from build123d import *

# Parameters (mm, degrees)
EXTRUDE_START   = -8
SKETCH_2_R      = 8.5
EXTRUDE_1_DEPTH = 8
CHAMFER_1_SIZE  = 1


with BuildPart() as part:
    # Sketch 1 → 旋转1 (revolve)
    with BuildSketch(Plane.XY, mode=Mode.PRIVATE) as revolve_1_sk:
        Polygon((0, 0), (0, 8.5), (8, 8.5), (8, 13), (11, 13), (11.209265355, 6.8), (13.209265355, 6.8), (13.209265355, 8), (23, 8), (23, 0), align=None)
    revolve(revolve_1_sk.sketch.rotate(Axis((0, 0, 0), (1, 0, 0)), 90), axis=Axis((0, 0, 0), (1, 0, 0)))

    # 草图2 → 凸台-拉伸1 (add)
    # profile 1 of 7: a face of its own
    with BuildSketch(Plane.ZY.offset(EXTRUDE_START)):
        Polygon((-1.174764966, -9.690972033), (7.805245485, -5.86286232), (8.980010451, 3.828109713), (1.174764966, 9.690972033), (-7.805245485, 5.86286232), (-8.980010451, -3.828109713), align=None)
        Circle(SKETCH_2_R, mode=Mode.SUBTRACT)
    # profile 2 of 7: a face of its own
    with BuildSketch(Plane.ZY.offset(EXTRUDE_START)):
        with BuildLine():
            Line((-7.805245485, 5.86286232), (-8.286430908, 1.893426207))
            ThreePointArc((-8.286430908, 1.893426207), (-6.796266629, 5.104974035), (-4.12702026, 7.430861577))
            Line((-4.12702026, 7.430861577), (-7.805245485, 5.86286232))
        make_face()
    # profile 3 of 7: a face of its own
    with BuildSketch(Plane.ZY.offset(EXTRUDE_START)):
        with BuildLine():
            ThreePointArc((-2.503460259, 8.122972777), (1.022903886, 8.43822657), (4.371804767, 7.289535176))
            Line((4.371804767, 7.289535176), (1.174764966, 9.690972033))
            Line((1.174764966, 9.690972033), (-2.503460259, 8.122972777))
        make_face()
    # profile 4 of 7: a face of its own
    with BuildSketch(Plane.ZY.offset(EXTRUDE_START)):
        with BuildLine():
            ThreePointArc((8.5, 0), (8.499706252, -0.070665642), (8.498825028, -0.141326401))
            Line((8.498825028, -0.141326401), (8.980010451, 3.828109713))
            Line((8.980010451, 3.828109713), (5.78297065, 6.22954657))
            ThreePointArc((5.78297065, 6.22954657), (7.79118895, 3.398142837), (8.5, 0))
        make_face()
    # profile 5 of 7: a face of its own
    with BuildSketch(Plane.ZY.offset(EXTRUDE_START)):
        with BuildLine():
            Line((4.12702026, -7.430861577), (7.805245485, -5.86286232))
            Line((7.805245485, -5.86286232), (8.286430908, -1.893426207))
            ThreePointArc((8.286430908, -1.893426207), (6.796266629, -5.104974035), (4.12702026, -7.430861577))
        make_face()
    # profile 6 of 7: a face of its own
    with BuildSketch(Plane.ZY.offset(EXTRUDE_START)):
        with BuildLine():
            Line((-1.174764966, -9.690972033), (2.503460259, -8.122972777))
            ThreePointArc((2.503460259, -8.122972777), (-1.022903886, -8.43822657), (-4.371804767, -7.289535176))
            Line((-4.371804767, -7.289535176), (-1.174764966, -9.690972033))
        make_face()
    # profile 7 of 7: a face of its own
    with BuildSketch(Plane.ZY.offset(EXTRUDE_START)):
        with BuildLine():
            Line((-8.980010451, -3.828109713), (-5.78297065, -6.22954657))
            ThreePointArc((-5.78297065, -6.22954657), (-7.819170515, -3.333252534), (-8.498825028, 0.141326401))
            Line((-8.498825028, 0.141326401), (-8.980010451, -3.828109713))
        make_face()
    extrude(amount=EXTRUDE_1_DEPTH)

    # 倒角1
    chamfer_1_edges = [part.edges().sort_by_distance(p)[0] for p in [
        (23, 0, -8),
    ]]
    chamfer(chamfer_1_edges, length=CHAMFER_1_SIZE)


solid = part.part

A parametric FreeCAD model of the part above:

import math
import FreeCAD as App
import Part
import Sketcher
from FreeCAD import Vector


def edges_at(feature, points):
    """Names of the edges that pass closest to the given points."""
    edges = feature.Shape.Edges
    near = lambda p: min(range(len(edges)), key=lambda i: edges[i].distToShape(Part.Vertex(*p))[0])
    return sorted({f"Edge{near(p) + 1}" for p in points})


def add_polygon(sketch, points):
    """Adds a closed chain of lines whose ends are joined by coincident constraints."""
    first, n = sketch.GeometryCount, len(points)
    for a, b in zip(points, points[1:] + points[:1]):
        sketch.addGeometry(Part.LineSegment(App.Vector(*a, 0), App.Vector(*b, 0)), False)
    for i in range(n):
        sketch.addConstraint(Sketcher.Constraint("Coincident", first + i, 2, first + (i + 1) % n, 1))

doc = App.newDocument("Part")
params = doc.addObject("Spreadsheet::Sheet", "Params")
for row, (alias, value) in enumerate([
    ("sketch1_width", "23 mm"),
    ("sketch1_width2", "2 mm"),
    ("sketch1_width3", "3 mm"),
    ("sketch1_width4", "8 mm"),
    ("sketch1_height", "8.5 mm"),
    ("revolution_angle", "360 deg"),
    ("sketch2_radius", "8.5 mm"),
    ("pad1_length", "8 mm"),
    ("chamfer_size", "1 mm"),
], start=1):
    params.set(f"A{row}", alias)
    params.set(f"B{row}", "=" + value)
    params.setAlias(f"B{row}", alias)

body = doc.addObject("PartDesign::Body", "Body")

sketch1 = doc.addObject("Sketcher::SketchObject", "Sketch")
body.addObject(sketch1)
sketch1.AttachmentSupport = (doc.XY_Plane, [""])
sketch1.MapMode = "FlatFace"
add_polygon(sketch1, [(0, 8.5), (0, 0), (23, 0), (23, 8), (13.2, 8), (13.2, 6.8), (11.2, 6.8), (11, 13), (8, 13), (8, 8.5)])
sketch1.addConstraint(Sketcher.Constraint("Vertical", 0))
sketch1.addConstraint(Sketcher.Constraint("Horizontal", 1))
sketch1.addConstraint(Sketcher.Constraint("Vertical", 2))
sketch1.addConstraint(Sketcher.Constraint("Horizontal", 3))
sketch1.addConstraint(Sketcher.Constraint("Vertical", 4))
sketch1.addConstraint(Sketcher.Constraint("Horizontal", 5))
sketch1.addConstraint(Sketcher.Constraint("Horizontal", 7))
sketch1.addConstraint(Sketcher.Constraint("Vertical", 8))
sketch1.addConstraint(Sketcher.Constraint("Horizontal", 9))
sketch1.addConstraint(Sketcher.Constraint("Coincident", 0, 2, -1, 1))
sketch1.addConstraint(Sketcher.Constraint("Equal", 9, 2))
sketch1.addConstraint(Sketcher.Constraint("DistanceX", 1, 1, 1, 2, 23.0))
sketch1.addConstraint(Sketcher.Constraint("DistanceX", 5, 2, 5, 1, 2.0))
sketch1.addConstraint(Sketcher.Constraint("DistanceX", 7, 2, 7, 1, 3.0))
sketch1.addConstraint(Sketcher.Constraint("DistanceX", 9, 2, 9, 1, 8.0))
sketch1.addConstraint(Sketcher.Constraint("DistanceY", 0, 2, 0, 1, 8.5))
sketch1.addConstraint(Sketcher.Constraint("DistanceY", 4, 2, 4, 1, 1.2))
sketch1.addConstraint(Sketcher.Constraint("DistanceY", 8, 2, 8, 1, 4.5))
sketch1.addConstraint(Sketcher.Constraint("Distance", 6, 6.203531))
sketch1.setExpression("Constraints[21]", "Params.sketch1_width")
sketch1.setExpression("Constraints[22]", "Params.sketch1_width2")
sketch1.setExpression("Constraints[23]", "Params.sketch1_width3")
sketch1.setExpression("Constraints[24]", "Params.sketch1_width4")
sketch1.setExpression("Constraints[25]", "Params.sketch1_height")
revolution = doc.addObject("PartDesign::Revolution", "Revolution")
body.addObject(revolution)
revolution.Profile = sketch1
revolution.ReferenceAxis = (sketch1, ["H_Axis"])
revolution.setExpression("Angle", "Params.revolution_angle")

sketch2 = doc.addObject("Sketcher::SketchObject", "Sketch001")
body.addObject(sketch2)
sketch2.AttachmentSupport = (doc.YZ_Plane, [""])
sketch2.MapMode = "FlatFace"
sketch2.AttachmentOffset = App.Placement(Vector(0, 0, 8), App.Rotation())
sketch2.addGeometry(Part.LineSegment(Vector(-7.3, -4.4, 0), Vector(-9.7, -1.2, 0)), False)
sketch2.addGeometry(Part.LineSegment(Vector(-9.7, -1.2, 0), Vector(-8.1, 2.5, 0)), False)
sketch2.addGeometry(Part.ArcOfCircle(Part.Circle(Vector(0, 0, 0), Vector(0, 0, 1), 8.5), math.radians(163), math.radians(211)), False)
sketch2.addGeometry(Part.ArcOfCircle(Part.Circle(Vector(0, 0, 0), Vector(0, 0, 1), 8.5), math.radians(103), math.radians(151)), False)
sketch2.addGeometry(Part.LineSegment(Vector(-7.4, 4.1, 0), Vector(-5.9, 7.8, 0)), False)
sketch2.addGeometry(Part.LineSegment(Vector(-5.9, 7.8, 0), Vector(-1.9, 8.3, 0)), False)
sketch2.addGeometry(Part.LineSegment(Vector(-3.8, -9, 0), Vector(-6.2, -5.8, 0)), False)
sketch2.addGeometry(Part.ArcOfCircle(Part.Circle(Vector(0, 0, 0), Vector(0, 0, 1), 8.5), math.radians(-137), math.radians(-89)), False)
sketch2.addGeometry(Part.LineSegment(Vector(0.1, -8.5, 0), Vector(-3.8, -9, 0)), False)
sketch2.addGeometry(Part.ArcOfCircle(Part.Circle(Vector(0, 0, 0), Vector(0, 0, 1), 8.5), math.radians(43), math.radians(91)), False)
sketch2.addGeometry(Part.LineSegment(Vector(-0.1, 8.5, 0), Vector(3.8, 9, 0)), False)
sketch2.addGeometry(Part.LineSegment(Vector(3.8, 9, 0), Vector(6.2, 5.8, 0)), False)
sketch2.addGeometry(Part.LineSegment(Vector(5.9, -7.8, 0), Vector(1.9, -8.3, 0)), False)
sketch2.addGeometry(Part.ArcOfCircle(Part.Circle(Vector(0, 0, 0), Vector(0, 0, 1), 8.5), math.radians(-77), math.radians(-29)), False)
sketch2.addGeometry(Part.LineSegment(Vector(7.4, -4.1, 0), Vector(5.9, -7.8, 0)), False)
sketch2.addGeometry(Part.LineSegment(Vector(9.7, 1.2, 0), Vector(8.1, -2.5, 0)), False)
sketch2.addGeometry(Part.ArcOfCircle(Part.Circle(Vector(0, 0, 0), Vector(0, 0, 1), 8.5), math.radians(-17), math.radians(31)), False)
sketch2.addGeometry(Part.LineSegment(Vector(7.3, 4.4, 0), Vector(9.7, 1.2, 0)), False)
sketch2.addConstraint(Sketcher.Constraint("Coincident", 0, 2, 1, 1))
sketch2.addConstraint(Sketcher.Constraint("Coincident", 1, 2, 2, 1))
sketch2.addConstraint(Sketcher.Constraint("Coincident", 2, 2, 0, 1))
sketch2.addConstraint(Sketcher.Constraint("Coincident", 3, 2, 4, 1))
sketch2.addConstraint(Sketcher.Constraint("Coincident", 4, 2, 5, 1))
sketch2.addConstraint(Sketcher.Constraint("Coincident", 5, 2, 3, 1))
sketch2.addConstraint(Sketcher.Constraint("Coincident", 6, 2, 7, 1))
sketch2.addConstraint(Sketcher.Constraint("Coincident", 7, 2, 8, 1))
sketch2.addConstraint(Sketcher.Constraint("Coincident", 8, 2, 6, 1))
sketch2.addConstraint(Sketcher.Constraint("Coincident", 9, 2, 10, 1))
sketch2.addConstraint(Sketcher.Constraint("Coincident", 10, 2, 11, 1))
sketch2.addConstraint(Sketcher.Constraint("Coincident", 11, 2, 9, 1))
sketch2.addConstraint(Sketcher.Constraint("Coincident", 12, 2, 13, 1))
sketch2.addConstraint(Sketcher.Constraint("Coincident", 13, 2, 14, 1))
sketch2.addConstraint(Sketcher.Constraint("Coincident", 14, 2, 12, 1))
sketch2.addConstraint(Sketcher.Constraint("Coincident", 15, 2, 16, 1))
sketch2.addConstraint(Sketcher.Constraint("Coincident", 16, 2, 17, 1))
sketch2.addConstraint(Sketcher.Constraint("Coincident", 17, 2, 15, 1))
sketch2.addConstraint(Sketcher.Constraint("Coincident", 2, 3, -1, 1))
sketch2.addConstraint(Sketcher.Constraint("Coincident", 3, 3, -1, 1))
sketch2.addConstraint(Sketcher.Constraint("Coincident", 7, 3, -1, 1))
sketch2.addConstraint(Sketcher.Constraint("Coincident", 9, 3, -1, 1))
sketch2.addConstraint(Sketcher.Constraint("Coincident", 13, 3, -1, 1))
sketch2.addConstraint(Sketcher.Constraint("Coincident", 16, 3, -1, 1))
sketch2.addConstraint(Sketcher.Constraint("Equal", 2, 3))
sketch2.addConstraint(Sketcher.Constraint("Equal", 3, 7))
sketch2.addConstraint(Sketcher.Constraint("Equal", 7, 9))
sketch2.addConstraint(Sketcher.Constraint("Equal", 9, 13))
sketch2.addConstraint(Sketcher.Constraint("Equal", 13, 16))
sketch2.addConstraint(Sketcher.Constraint("Symmetric", 8, 2, 10, 2, -1, 1))
sketch2.addConstraint(Sketcher.Constraint("Symmetric", 4, 2, 14, 2, -1, 1))
sketch2.addConstraint(Sketcher.Constraint("Symmetric", 0, 2, 17, 2, -1, 1))
sketch2.addConstraint(Sketcher.Constraint("Parallel", 1, 4))
sketch2.addConstraint(Sketcher.Constraint("Parallel", 0, 6))
sketch2.addConstraint(Sketcher.Constraint("Parallel", 5, 8))
sketch2.addConstraint(Sketcher.Constraint("Parallel", 8, 10))
sketch2.addConstraint(Sketcher.Constraint("Parallel", 6, 11))
sketch2.addConstraint(Sketcher.Constraint("Parallel", 10, 12))
sketch2.addConstraint(Sketcher.Constraint("Parallel", 4, 14))
sketch2.addConstraint(Sketcher.Constraint("Parallel", 14, 15))
sketch2.addConstraint(Sketcher.Constraint("Parallel", 11, 17))
sketch2.addConstraint(Sketcher.Constraint("Equal", 0, 1))
sketch2.addConstraint(Sketcher.Constraint("Equal", 1, 4))
sketch2.addConstraint(Sketcher.Constraint("Equal", 4, 5))
sketch2.addConstraint(Sketcher.Constraint("Equal", 5, 6))
sketch2.addConstraint(Sketcher.Constraint("Equal", 6, 8))
sketch2.addConstraint(Sketcher.Constraint("Radius", 2, 8.5))
sketch2.addConstraint(Sketcher.Constraint("DistanceX", 0, 2, 1, 2, 1.567999))
sketch2.addConstraint(Sketcher.Constraint("DistanceX", 5, 2, 9, 2, 1.7521))
sketch2.addConstraint(Sketcher.Constraint("DistanceY", -1, 1, 1, 2, 2.50346))
sketch2.addConstraint(Sketcher.Constraint("DistanceX", 3, 2, -1, 1, 7.430862))
sketch2.setExpression("Constraints[46]", "Params.sketch2_radius")
pad1 = doc.addObject("PartDesign::Pad", "Pad")
body.addObject(pad1)
pad1.Profile = sketch2
pad1.setExpression("Length", "Params.pad1_length")
pad1.Reversed = True
doc.recompute()

chamfer = doc.addObject("PartDesign::Chamfer", "Chamfer")
body.addObject(chamfer)
chamfer.Base = (pad1, edges_at(pad1, [(23, 0, -8)]))
chamfer.setExpression("Size", "Params.chamfer_size")

doc.recompute()
